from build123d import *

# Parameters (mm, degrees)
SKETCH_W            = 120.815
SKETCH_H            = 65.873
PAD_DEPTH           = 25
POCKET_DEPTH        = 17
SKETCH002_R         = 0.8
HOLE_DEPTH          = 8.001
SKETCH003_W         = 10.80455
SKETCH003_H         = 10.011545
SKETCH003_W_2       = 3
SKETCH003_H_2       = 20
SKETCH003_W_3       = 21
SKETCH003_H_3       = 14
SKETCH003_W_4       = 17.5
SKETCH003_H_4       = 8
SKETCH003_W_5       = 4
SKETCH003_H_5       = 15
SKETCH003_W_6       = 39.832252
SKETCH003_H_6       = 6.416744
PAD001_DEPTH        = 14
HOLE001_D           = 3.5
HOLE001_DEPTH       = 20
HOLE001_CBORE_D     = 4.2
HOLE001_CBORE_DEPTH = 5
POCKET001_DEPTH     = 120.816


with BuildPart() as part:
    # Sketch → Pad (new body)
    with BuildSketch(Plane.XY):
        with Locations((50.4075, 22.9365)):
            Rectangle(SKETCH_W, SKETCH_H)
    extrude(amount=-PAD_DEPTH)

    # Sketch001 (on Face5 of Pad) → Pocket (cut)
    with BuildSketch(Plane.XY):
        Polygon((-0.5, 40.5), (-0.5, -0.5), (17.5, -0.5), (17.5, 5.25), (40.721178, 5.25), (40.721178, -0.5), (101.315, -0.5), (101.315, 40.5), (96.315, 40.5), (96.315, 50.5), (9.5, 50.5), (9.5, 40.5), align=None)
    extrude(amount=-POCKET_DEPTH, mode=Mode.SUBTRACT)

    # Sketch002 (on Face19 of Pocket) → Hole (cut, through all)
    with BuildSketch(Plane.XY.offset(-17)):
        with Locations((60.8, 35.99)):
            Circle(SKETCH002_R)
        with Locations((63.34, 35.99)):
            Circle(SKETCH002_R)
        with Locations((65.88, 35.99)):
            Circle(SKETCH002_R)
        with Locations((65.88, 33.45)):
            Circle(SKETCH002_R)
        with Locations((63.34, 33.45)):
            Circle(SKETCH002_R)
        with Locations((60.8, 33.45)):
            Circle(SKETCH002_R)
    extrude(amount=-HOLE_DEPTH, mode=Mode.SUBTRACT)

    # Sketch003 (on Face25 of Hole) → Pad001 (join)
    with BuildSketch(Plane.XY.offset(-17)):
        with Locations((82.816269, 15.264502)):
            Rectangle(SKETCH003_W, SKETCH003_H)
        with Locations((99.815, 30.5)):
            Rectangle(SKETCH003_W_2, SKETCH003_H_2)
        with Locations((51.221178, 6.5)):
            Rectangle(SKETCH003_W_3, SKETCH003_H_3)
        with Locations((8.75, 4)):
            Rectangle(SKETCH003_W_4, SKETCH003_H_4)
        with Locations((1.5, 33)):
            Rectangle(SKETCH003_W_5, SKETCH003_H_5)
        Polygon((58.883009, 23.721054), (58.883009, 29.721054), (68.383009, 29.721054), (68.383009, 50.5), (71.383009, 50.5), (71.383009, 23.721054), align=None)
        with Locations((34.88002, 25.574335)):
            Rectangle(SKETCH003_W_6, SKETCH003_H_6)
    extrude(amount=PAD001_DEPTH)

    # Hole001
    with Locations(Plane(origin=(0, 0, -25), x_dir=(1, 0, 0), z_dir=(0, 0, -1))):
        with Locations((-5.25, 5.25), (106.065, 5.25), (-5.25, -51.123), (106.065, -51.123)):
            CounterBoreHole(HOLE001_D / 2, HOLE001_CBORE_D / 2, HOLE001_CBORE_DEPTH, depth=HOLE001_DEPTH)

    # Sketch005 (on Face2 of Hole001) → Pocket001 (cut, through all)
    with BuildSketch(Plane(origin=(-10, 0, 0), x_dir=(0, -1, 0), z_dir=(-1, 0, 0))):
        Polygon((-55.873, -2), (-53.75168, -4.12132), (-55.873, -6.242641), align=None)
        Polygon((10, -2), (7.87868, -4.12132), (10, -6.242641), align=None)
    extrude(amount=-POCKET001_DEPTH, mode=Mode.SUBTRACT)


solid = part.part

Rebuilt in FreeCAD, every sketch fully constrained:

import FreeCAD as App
import Part
import Sketcher
from FreeCAD import Vector


def add_polygon(sketch, points):
    """Adds a closed chain of lines whose ends are joined by coincident constraints."""
    first, n = sketch.GeometryCount, len(points)
    for a, b in zip(points, points[1:] + points[:1]):
        sketch.addGeometry(Part.LineSegment(App.Vector(*a, 0), App.Vector(*b, 0)), False)
    for i in range(n):
        sketch.addConstraint(Sketcher.Constraint("Coincident", first + i, 2, first + (i + 1) % n, 1))

doc = App.newDocument("Part")
body = doc.addObject("PartDesign::Body", "Body")

sketch1 = body.newObject("Sketcher::SketchObject", "Sketch")
sketch1.AttachmentSupport = (doc.getObject("XY_Plane"), [""])
sketch1.MapMode = "FlatFace"
add_polygon(sketch1, [(-10, 56), (-10, -10), (111, -10), (111, 56)])
sketch1.addConstraint([
    Sketcher.Constraint("Vertical", 0),
    Sketcher.Constraint("Horizontal", 1),
    Sketcher.Constraint("Vertical", 2),
    Sketcher.Constraint("Horizontal", 3),
    Sketcher.Constraint("DistanceX", 0, 2, -1, 1, 10.0),
    Sketcher.Constraint("DistanceY", 0, 2, -1, 1, 10.0),
    Sketcher.Constraint("DistanceX", 1, 1, 1, 2, 120.815),
    Sketcher.Constraint("DistanceY", 0, 2, 0, 1, 65.873),
])
pad1 = body.newObject("PartDesign::Pad", "Pad")
pad1.Profile = sketch1
pad1.Length = 25
pad1.Reversed = True

sketch2 = body.newObject("Sketcher::SketchObject", "Sketch001")
sketch2.AttachmentSupport = (doc.getObject("XY_Plane"), [""])
sketch2.MapMode = "FlatFace"
add_polygon(sketch2, [(0, 40), (0, 0), (18, 0), (18, 5), (41, 5), (41, 0), (101, 0), (101, 40), (96, 40), (96, 50), (10, 50), (10, 40)])
sketch2.addConstraint([
    Sketcher.Constraint("Vertical", 0),
    Sketcher.Constraint("Horizontal", 1),
    Sketcher.Constraint("Vertical", 2),
    Sketcher.Constraint("Horizontal", 3),
    Sketcher.Constraint("Vertical", 4),
    Sketcher.Constraint("Horizontal", 5),
    Sketcher.Constraint("Vertical", 6),
    Sketcher.Constraint("Horizontal", 7),
    Sketcher.Constraint("Vertical", 8),
    Sketcher.Constraint("Horizontal", 9),
    Sketcher.Constraint("Vertical", 10),
    Sketcher.Constraint("Horizontal", 11),
    Sketcher.Constraint("Horizontal", 1, 2, 4, 2),
    Sketcher.Constraint("Horizontal", 7, 2, 10, 2),
    Sketcher.Constraint("Equal", 11, 8),
    Sketcher.Constraint("DistanceX", 1, 1, 1, 2, 18.0),
    Sketcher.Constraint("DistanceX", 7, 2, 7, 1, 5.0),
    Sketcher.Constraint("DistanceX", 11, 2, 11, 1, 10.0),
    Sketcher.Constraint("DistanceY", 0, 2, 0, 1, 41.0),
    Sketcher.Constraint("DistanceY", 2, 1, 2, 2, 5.75),
    Sketcher.Constraint("DistanceX", 0, 2, -1, 1, 0.5),
    Sketcher.Constraint("DistanceY", 0, 2, -1, 1, 0.5),
    Sketcher.Constraint("DistanceX", 9, 2, 9, 1, 86.815),
    Sketcher.Constraint("DistanceX", 3, 1, 3, 2, 23.221178),
])
pocket1 = body.newObject("PartDesign::Pocket", "Pocket")
pocket1.Profile = sketch2
pocket1.Length = 17

sketch3 = body.newObject("Sketcher::SketchObject", "Sketch002")
sketch3.AttachmentSupport = (doc.getObject("XY_Plane"), [""])
sketch3.MapMode = "FlatFace"
sketch3.AttachmentOffset = App.Placement(Vector(0, 0, -17), App.Rotation())
sketch3.addGeometry([
    Part.Circle(Vector(60.8, 36, 0), Vector(0, 0, 1), 0.8),
    Part.Circle(Vector(63.3, 36, 0), Vector(0, 0, 1), 0.8),
    Part.Circle(Vector(65.9, 36, 0), Vector(0, 0, 1), 0.8),
    Part.Circle(Vector(65.9, 33.5, 0), Vector(0, 0, 1), 0.8),
    Part.Circle(Vector(63.3, 33.5, 0), Vector(0, 0, 1), 0.8),
    Part.Circle(Vector(60.8, 33.5, 0), Vector(0, 0, 1), 0.8),
], False)
sketch3.addConstraint([
    Sketcher.Constraint("Equal", 0, 1),
    Sketcher.Constraint("Equal", 1, 2),
    Sketcher.Constraint("Equal", 2, 3),
    Sketcher.Constraint("Equal", 3, 4),
    Sketcher.Constraint("Equal", 4, 5),
    Sketcher.Constraint("Horizontal", 0, 3, 1, 3),
    Sketcher.Constraint("Horizontal", 1, 3, 2, 3),
    Sketcher.Constraint("Horizontal", 3, 3, 4, 3),
    Sketcher.Constraint("Horizontal", 4, 3, 5, 3),
    Sketcher.Constraint("Vertical", 2, 3, 3, 3),
    Sketcher.Constraint("Vertical", 1, 3, 4, 3),
    Sketcher.Constraint("Vertical", 0, 3, 5, 3),
    Sketcher.Constraint("Diameter", 0, 1.6),
    Sketcher.Constraint("DistanceX", -1, 1, 0, 3, 60.8),
    Sketcher.Constraint("DistanceY", -1, 1, 0, 3, 35.99),
    Sketcher.Constraint("DistanceX", -1, 1, 1, 3, 63.34),
    Sketcher.Constraint("DistanceX", -1, 1, 2, 3, 65.88),
    Sketcher.Constraint("DistanceY", -1, 1, 3, 3, 33.45),
])
pocket2 = body.newObject("PartDesign::Pocket", "Pocket001")
pocket2.Profile = sketch3
pocket2.Type = "ThroughAll"

sketch4 = body.newObject("Sketcher::SketchObject", "Sketch003")
sketch4.AttachmentSupport = (doc.getObject("XY_Plane"), [""])
sketch4.MapMode = "FlatFace"
sketch4.AttachmentOffset = App.Placement(Vector(0, 0, -17), App.Rotation())
add_polygon(sketch4, [(77.4, 20.3), (77.4, 10.3), (88.2, 10.3), (88.2, 20.3)])
add_polygon(sketch4, [(98.3, 40.5), (98.3, 20.5), (101.3, 20.5), (101.3, 40.5)])
add_polygon(sketch4, [(40.7, 13.5), (40.7, -0.5), (61.7, -0.5), (61.7, 13.5)])
add_polygon(sketch4, [(0, 8), (0, 0), (17.5, 0), (17.5, 8)])
add_polygon(sketch4, [(-0.5, 40.5), (-0.5, 25.5), (3.5, 25.5), (3.5, 40.5)])
add_polygon(sketch4, [(58.9, 29.7), (58.9, 23.7), (71.4, 23.7), (71.4, 50.5), (68.4, 50.5), (68.4, 29.7)])
add_polygon(sketch4, [(15, 28.8), (15, 22.4), (54.8, 22.4), (54.8, 28.8)])
sketch4.addConstraint([
    Sketcher.Constraint("Vertical", 0),
    Sketcher.Constraint("Horizontal", 1),
    Sketcher.Constraint("Vertical", 2),
    Sketcher.Constraint("Horizontal", 3),
    Sketcher.Constraint("Vertical", 4),
    Sketcher.Constraint("Horizontal", 5),
    Sketcher.Constraint("Vertical", 6),
    Sketcher.Constraint("Horizontal", 7),
    Sketcher.Constraint("Vertical", 8),
    Sketcher.Constraint("Horizontal", 9),
    Sketcher.Constraint("Vertical", 10),
    Sketcher.Constraint("Horizontal", 11),
    Sketcher.Constraint("Vertical", 12),
    Sketcher.Constraint("Horizontal", 13),
    Sketcher.Constraint("Vertical", 14),
    Sketcher.Constraint("Horizontal", 15),
    Sketcher.Constraint("Vertical", 16),
    Sketcher.Constraint("Horizontal", 17),
    Sketcher.Constraint("Vertical", 18),
    Sketcher.Constraint("Horizontal", 19),
    Sketcher.Constraint("Vertical", 20),
    Sketcher.Constraint("Horizontal", 21),
    Sketcher.Constraint("Vertical", 22),
    Sketcher.Constraint("Horizontal", 23),
    Sketcher.Constraint("Vertical", 24),
    Sketcher.Constraint("Horizontal", 25),
    Sketcher.Constraint("Vertical", 26),
    Sketcher.Constraint("Horizontal", 27),
    Sketcher.Constraint("Vertical", 28),
    Sketcher.Constraint("Horizontal", 29),
    Sketcher.Constraint("Coincident", 12, 2, -1, 1),
    Sketcher.Constraint("Horizontal", 7, 2, 18, 2),
    Sketcher.Constraint("Equal", 7, 23),
    Sketcher.Constraint("DistanceX", 5, 1, 5, 2, 3.0),
    Sketcher.Constraint("DistanceX", 9, 1, 9, 2, 21.0),
    Sketcher.Constraint("DistanceX", 17, 1, 17, 2, 4.0),
    Sketcher.Constraint("DistanceY", 4, 2, 4, 1, 20.0),
    Sketcher.Constraint("DistanceY", 8, 2, 8, 1, 14.0),
    Sketcher.Constraint("DistanceY", 12, 2, 12, 1, 8.0),
    Sketcher.Constraint("DistanceY", 16, 2, 16, 1, 15.0),
    Sketcher.Constraint("DistanceY", 20, 2, 20, 1, 6.0),
    Sketcher.Constraint("DistanceX", 13, 1, 13, 2, 17.5),
    Sketcher.Constraint("DistanceX", 21, 1, 21, 2, 12.5),
    Sketcher.Constraint("DistanceY", 8, 2, 4, 2, 21.0),
    Sketcher.Constraint("DistanceX", 16, 2, 14, 2, 18.0),
    Sketcher.Constraint("DistanceY", 7, 2, 22, 2, 10.0),
    Sketcher.Constraint("DistanceY", -1, 1, 4, 2, 20.5),
    Sketcher.Constraint("DistanceX", -1, 1, 4, 2, 98.315),
    Sketcher.Constraint("DistanceX", 1, 1, 1, 2, 10.80455),
    Sketcher.Constraint("DistanceX", 27, 1, 27, 2, 39.832252),
    Sketcher.Constraint("DistanceY", 0, 2, 0, 1, 10.011545),
    Sketcher.Constraint("DistanceY", 22, 1, 22, 2, 26.778946),
    Sketcher.Constraint("DistanceY", 26, 2, 26, 1, 6.416744),
    Sketcher.Constraint("DistanceY", -1, 1, 0, 2, 10.258729),
    Sketcher.Constraint("DistanceX", -1, 1, 8, 2, 40.721178),
    Sketcher.Constraint("DistanceX", -1, 1, 20, 2, 58.883009),
    Sketcher.Constraint("DistanceY", 27, 2, 20, 2, 1.355091),
    Sketcher.Constraint("DistanceX", -1, 1, 0, 2, 77.413994),
    Sketcher.Constraint("DistanceX", -1, 1, 26, 2, 14.963894),
])
pad2 = body.newObject("PartDesign::Pad", "Pad001")
pad2.Profile = sketch4
pad2.Length = 14

sketch5 = body.newObject("Sketcher::SketchObject", "Sketch004")
sketch5.AttachmentSupport = (doc.getObject("XY_Plane"), [""])
sketch5.MapMode = "FlatFace"
sketch5.AttachmentOffset = App.Placement(Vector(0, 0, -25), App.Rotation())
sketch5.addGeometry([
    Part.Circle(Vector(-5.2, -5.2, 0), Vector(0, 0, 1), 1.8),
    Part.Circle(Vector(106.1, -5.2, 0), Vector(0, 0, 1), 1.8),
    Part.Circle(Vector(-5.2, 51.1, 0), Vector(0, 0, 1), 1.8),
    Part.Circle(Vector(106.1, 51.1, 0), Vector(0, 0, 1), 1.8),
], False)
sketch5.addConstraint([
    Sketcher.Constraint("Equal", 0, 1),
    Sketcher.Constraint("Equal", 1, 2),
    Sketcher.Constraint("Equal", 2, 3),
    Sketcher.Constraint("Horizontal", 0, 3, 1, 3),
    Sketcher.Constraint("Horizontal", 2, 3, 3, 3),
    Sketcher.Constraint("Vertical", 0, 3, 2, 3),
    Sketcher.Constraint("Vertical", 1, 3, 3, 3),
    Sketcher.Constraint("Diameter", 0, 3.5),
    Sketcher.Constraint("DistanceX", 0, 3, -1, 1, 5.25),
    Sketcher.Constraint("DistanceY", 0, 3, -1, 1, 5.25),
    Sketcher.Constraint("DistanceX", -1, 1, 1, 3, 106.065),
    Sketcher.Constraint("DistanceY", -1, 1, 2, 3, 51.123),
])
doc.recompute()
hole = body.newObject("PartDesign::Hole", "Hole")
hole.Profile = sketch5
hole.ThreadType = "None"
hole.Diameter = 3.5
hole.DepthType = "Dimension"
hole.Depth = 20
hole.DrillPoint = "Flat"
hole.HoleCutType = "Counterbore"
hole.HoleCutDiameter = 4.2
hole.HoleCutDepth = 5
hole.Reversed = True

sketch6 = body.newObject("Sketcher::SketchObject", "Sketch005")
sketch6.AttachmentSupport = (doc.getObject("YZ_Plane"), [""])
sketch6.MapMode = "FlatFace"
sketch6.AttachmentOffset = App.Placement(Vector(0, 0, -10), App.Rotation())
add_polygon(sketch6, [(53.8, -4.1), (55.9, -2), (55.9, -6.2)])
add_polygon(sketch6, [(-10, -2), (-7.9, -4.1), (-10, -6.2)])
sketch6.addConstraint([
    Sketcher.Constraint("Vertical", 1),
    Sketcher.Constraint("Vertical", 5),
    Sketcher.Constraint("Perpendicular", 0, 2),
    Sketcher.Constraint("Parallel", 2, 3),
    Sketcher.Constraint("Perpendicular", 3, 4),
    Sketcher.Constraint("Horizontal", 2, 2, 3, 2),
    Sketcher.Constraint("Horizontal", 1, 2, 4, 2),
    Sketcher.Constraint("Horizontal", 0, 2, 5, 2),
    Sketcher.Constraint("Distance", 0, 3.0),
    Sketcher.Constraint("DistanceY", 0, 2, -1, 1, 2.0),
    Sketcher.Constraint("DistanceX", 4, 2, -1, 1, 10.0),
    Sketcher.Constraint("DistanceX", -1, 1, 0, 2, 55.873),
])
pocket3 = body.newObject("PartDesign::Pocket", "Pocket002")
pocket3.Profile = sketch6
pocket3.Type = "ThroughAll"
pocket3.Reversed = True

doc.recompute()
